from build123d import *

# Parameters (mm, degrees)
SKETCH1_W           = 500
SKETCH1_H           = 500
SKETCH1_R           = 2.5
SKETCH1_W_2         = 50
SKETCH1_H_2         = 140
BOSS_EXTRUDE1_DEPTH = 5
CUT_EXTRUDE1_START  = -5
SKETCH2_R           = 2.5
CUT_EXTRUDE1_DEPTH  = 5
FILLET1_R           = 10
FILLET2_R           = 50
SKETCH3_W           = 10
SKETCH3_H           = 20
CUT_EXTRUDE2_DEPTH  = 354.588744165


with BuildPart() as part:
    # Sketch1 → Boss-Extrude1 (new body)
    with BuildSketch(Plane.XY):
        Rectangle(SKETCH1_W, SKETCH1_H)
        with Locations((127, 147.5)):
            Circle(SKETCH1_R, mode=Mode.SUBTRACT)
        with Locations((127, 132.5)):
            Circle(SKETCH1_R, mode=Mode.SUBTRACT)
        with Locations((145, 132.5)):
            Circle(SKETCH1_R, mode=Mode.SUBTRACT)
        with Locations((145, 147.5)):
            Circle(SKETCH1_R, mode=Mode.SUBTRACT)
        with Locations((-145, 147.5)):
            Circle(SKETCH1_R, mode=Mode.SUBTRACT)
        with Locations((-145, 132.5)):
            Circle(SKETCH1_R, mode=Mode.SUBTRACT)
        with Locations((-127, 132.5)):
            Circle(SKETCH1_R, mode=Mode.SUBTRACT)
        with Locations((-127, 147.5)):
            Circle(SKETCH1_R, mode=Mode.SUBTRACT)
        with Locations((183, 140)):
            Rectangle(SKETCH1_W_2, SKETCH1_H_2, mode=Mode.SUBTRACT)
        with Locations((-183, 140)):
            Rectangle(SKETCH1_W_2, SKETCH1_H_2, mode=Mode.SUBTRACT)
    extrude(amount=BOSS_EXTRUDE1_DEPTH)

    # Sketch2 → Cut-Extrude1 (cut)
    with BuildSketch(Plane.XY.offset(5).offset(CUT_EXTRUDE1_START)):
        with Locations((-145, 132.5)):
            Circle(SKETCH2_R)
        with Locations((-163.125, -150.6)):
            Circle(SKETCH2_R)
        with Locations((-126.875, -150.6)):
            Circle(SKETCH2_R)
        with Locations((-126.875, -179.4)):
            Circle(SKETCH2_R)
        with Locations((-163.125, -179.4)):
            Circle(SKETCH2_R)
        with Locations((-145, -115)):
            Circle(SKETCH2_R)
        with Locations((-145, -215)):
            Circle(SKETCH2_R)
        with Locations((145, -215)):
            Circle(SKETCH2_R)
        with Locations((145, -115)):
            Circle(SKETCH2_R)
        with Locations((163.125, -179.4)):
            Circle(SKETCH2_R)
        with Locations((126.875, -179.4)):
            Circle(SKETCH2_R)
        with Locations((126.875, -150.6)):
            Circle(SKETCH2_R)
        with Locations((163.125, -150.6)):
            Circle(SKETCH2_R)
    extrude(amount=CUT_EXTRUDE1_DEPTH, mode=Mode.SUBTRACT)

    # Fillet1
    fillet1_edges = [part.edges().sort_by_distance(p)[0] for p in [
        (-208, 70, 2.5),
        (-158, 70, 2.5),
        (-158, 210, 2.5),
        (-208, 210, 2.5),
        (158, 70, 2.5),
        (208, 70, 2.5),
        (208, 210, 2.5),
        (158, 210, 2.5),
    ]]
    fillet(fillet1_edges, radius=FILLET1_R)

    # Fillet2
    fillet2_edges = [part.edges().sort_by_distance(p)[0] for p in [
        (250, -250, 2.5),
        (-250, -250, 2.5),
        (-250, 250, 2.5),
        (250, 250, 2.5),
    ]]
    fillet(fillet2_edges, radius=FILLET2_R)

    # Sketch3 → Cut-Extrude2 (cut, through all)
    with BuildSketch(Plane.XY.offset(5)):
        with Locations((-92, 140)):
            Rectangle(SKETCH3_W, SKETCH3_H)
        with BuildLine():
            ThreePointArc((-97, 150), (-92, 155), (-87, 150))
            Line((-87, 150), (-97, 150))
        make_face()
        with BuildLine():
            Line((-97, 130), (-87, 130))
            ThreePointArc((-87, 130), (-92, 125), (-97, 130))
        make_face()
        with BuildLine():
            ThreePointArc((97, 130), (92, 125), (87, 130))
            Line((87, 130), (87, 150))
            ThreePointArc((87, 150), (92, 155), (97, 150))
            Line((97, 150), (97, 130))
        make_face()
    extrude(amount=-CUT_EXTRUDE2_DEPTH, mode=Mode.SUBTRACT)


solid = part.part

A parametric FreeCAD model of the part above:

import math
import FreeCAD as App
import Part
import Sketcher
Q = App.Units.Quantity


def edges_at(feature, points):
    """Names of the edges that pass closest to the given points."""
    edges = feature.Shape.Edges
    near = lambda p: min(range(len(edges)), key=lambda i: edges[i].distToShape(Part.Vertex(*p))[0])
    return sorted({f"Edge{near(p) + 1}" for p in points})


def add_polygon(sketch, points):
    """Adds a closed chain of lines whose ends are joined by coincident constraints."""
    first, n = sketch.GeometryCount, len(points)
    for a, b in zip(points, points[1:] + points[:1]):
        sketch.addGeometry(Part.LineSegment(App.Vector(*a, 0), App.Vector(*b, 0)), False)
    for i in range(n):
        sketch.addConstraint(Sketcher.Constraint("Coincident", first + i, 2, first + (i + 1) % n, 1))

doc = App.newDocument("Part")
body = doc.addObject("PartDesign::Body", "Body")

sketch1 = body.newObject("Sketcher::SketchObject", "Sketch")
sketch1.AttachmentSupport = (doc.getObject("XY_Plane"), [""])
sketch1.MapMode = "FlatFace"
add_polygon(sketch1, [(-250, 250), (-250, -250), (250, -250), (250, 250)])
sketch1.addGeometry(Part.Circle(App.Vector(-145, 132.5, 0), App.Vector(0, 0, 1), 2.5), False)
sketch1.addGeometry(Part.Circle(App.Vector(-127, 132.5, 0), App.Vector(0, 0, 1), 2.5), False)
sketch1.addGeometry(Part.Circle(App.Vector(127, 132.5, 0), App.Vector(0, 0, 1), 2.5), False)
sketch1.addGeometry(Part.Circle(App.Vector(145, 132.5, 0), App.Vector(0, 0, 1), 2.5), False)
add_polygon(sketch1, [(-158, 70), (-208, 70), (-208, 210), (-158, 210)])
sketch1.addGeometry(Part.Circle(App.Vector(-145, 147.5, 0), App.Vector(0, 0, 1), 2.5), False)
sketch1.addGeometry(Part.Circle(App.Vector(-127, 147.5, 0), App.Vector(0, 0, 1), 2.5), False)
sketch1.addGeometry(Part.Circle(App.Vector(127, 147.5, 0), App.Vector(0, 0, 1), 2.5), False)
sketch1.addGeometry(Part.Circle(App.Vector(145, 147.5, 0), App.Vector(0, 0, 1), 2.5), False)
add_polygon(sketch1, [(208, 70), (158, 70), (158, 210), (208, 210)])
sketch1.addConstraint(Sketcher.Constraint("Vertical", 0))
sketch1.addConstraint(Sketcher.Constraint("Horizontal", 1))
sketch1.addConstraint(Sketcher.Constraint("Vertical", 2))
sketch1.addConstraint(Sketcher.Constraint("Horizontal", 3))
sketch1.addConstraint(Sketcher.Constraint("Horizontal", 8))
sketch1.addConstraint(Sketcher.Constraint("Vertical", 9))
sketch1.addConstraint(Sketcher.Constraint("Horizontal", 10))
sketch1.addConstraint(Sketcher.Constraint("Vertical", 11))
sketch1.addConstraint(Sketcher.Constraint("Horizontal", 16))
sketch1.addConstraint(Sketcher.Constraint("Vertical", 17))
sketch1.addConstraint(Sketcher.Constraint("Horizontal", 18))
sketch1.addConstraint(Sketcher.Constraint("Vertical", 19))
sketch1.addConstraint(Sketcher.Constraint("Equal", 4, 5))
sketch1.addConstraint(Sketcher.Constraint("Equal", 5, 6))
sketch1.addConstraint(Sketcher.Constraint("Equal", 6, 7))
sketch1.addConstraint(Sketcher.Constraint("Equal", 7, 12))
sketch1.addConstraint(Sketcher.Constraint("Equal", 12, 13))
sketch1.addConstraint(Sketcher.Constraint("Equal", 13, 14))
sketch1.addConstraint(Sketcher.Constraint("Equal", 14, 15))
sketch1.addConstraint(Sketcher.Constraint("Symmetric", 0, 2, 2, 2, -1, 1))
sketch1.addConstraint(Sketcher.Constraint("Symmetric", 5, 3, 6, 3, -2))
sketch1.addConstraint(Sketcher.Constraint("Symmetric", 4, 3, 7, 3, -2))
sketch1.addConstraint(Sketcher.Constraint("Symmetric", 13, 3, 14, 3, -2))
sketch1.addConstraint(Sketcher.Constraint("Symmetric", 12, 3, 15, 3, -2))
sketch1.addConstraint(Sketcher.Constraint("Symmetric", 11, 2, 16, 2, -2))
sketch1.addConstraint(Sketcher.Constraint("Symmetric", 9, 2, 18, 2, -2))
sketch1.addConstraint(Sketcher.Constraint("Horizontal", 4, 3, 5, 3))
sketch1.addConstraint(Sketcher.Constraint("Horizontal", 12, 3, 13, 3))
sketch1.addConstraint(Sketcher.Constraint("Vertical", 4, 3, 12, 3))
sketch1.addConstraint(Sketcher.Constraint("Vertical", 5, 3, 13, 3))
sketch1.addConstraint(Sketcher.Constraint("Equal", 3, 0))
sketch1.addConstraint(Sketcher.Constraint("Diameter", 4, Q("5 mm")))
sketch1.addConstraint(Sketcher.Constraint("DistanceX", 1, 1, 1, 2, Q("500 mm")))
sketch1.addConstraint(Sketcher.Constraint("DistanceX", 8, 2, 8, 1, Q("50 mm")))
sketch1.addConstraint(Sketcher.Constraint("DistanceY", 9, 1, 9, 2, Q("140 mm")))
sketch1.addConstraint(Sketcher.Constraint("DistanceX", 4, 3, -1, 1, Q("145 mm")))
sketch1.addConstraint(Sketcher.Constraint("DistanceX", 5, 3, -1, 1, Q("127 mm")))
sketch1.addConstraint(Sketcher.Constraint("DistanceX", 8, 2, -1, 1, Q("208 mm")))
sketch1.addConstraint(Sketcher.Constraint("DistanceY", -1, 1, 8, 2, Q("70 mm")))
sketch1.addConstraint(Sketcher.Constraint("DistanceY", 4, 3, 12, 3, Q("15 mm")))
sketch1.addConstraint(Sketcher.Constraint("DistanceY", -1, 1, 4, 3, Q("132.5 mm")))
pad1 = body.newObject("PartDesign::Pad", "Pad")
pad1.Profile = sketch1
pad1.Length = 5

sketch2 = body.newObject("Sketcher::SketchObject", "Sketch001")
sketch2.AttachmentSupport = (doc.getObject("XY_Plane"), [""])
sketch2.MapMode = "FlatFace"
sketch2.addGeometry(Part.Circle(App.Vector(-145, 132.5, 0), App.Vector(0, 0, 1), 2.5), False)
sketch2.addGeometry(Part.Circle(App.Vector(-163.1, -150.6, 0), App.Vector(0, 0, 1), 2.5), False)
sketch2.addGeometry(Part.Circle(App.Vector(-126.9, -150.6, 0), App.Vector(0, 0, 1), 2.5), False)
sketch2.addGeometry(Part.Circle(App.Vector(-126.9, -179.4, 0), App.Vector(0, 0, 1), 2.5), False)
sketch2.addGeometry(Part.Circle(App.Vector(-163.1, -179.4, 0), App.Vector(0, 0, 1), 2.5), False)
sketch2.addGeometry(Part.Circle(App.Vector(-145, -115, 0), App.Vector(0, 0, 1), 2.5), False)
sketch2.addGeometry(Part.Circle(App.Vector(-145, -215, 0), App.Vector(0, 0, 1), 2.5), False)
sketch2.addGeometry(Part.Circle(App.Vector(145, -215, 0), App.Vector(0, 0, 1), 2.5), False)
sketch2.addGeometry(Part.Circle(App.Vector(145, -115, 0), App.Vector(0, 0, 1), 2.5), False)
sketch2.addGeometry(Part.Circle(App.Vector(163.1, -179.4, 0), App.Vector(0, 0, 1), 2.5), False)
sketch2.addGeometry(Part.Circle(App.Vector(126.9, -179.4, 0), App.Vector(0, 0, 1), 2.5), False)
sketch2.addGeometry(Part.Circle(App.Vector(126.9, -150.6, 0), App.Vector(0, 0, 1), 2.5), False)
sketch2.addGeometry(Part.Circle(App.Vector(163.1, -150.6, 0), App.Vector(0, 0, 1), 2.5), False)
sketch2.addConstraint(Sketcher.Constraint("Equal", 0, 1))
sketch2.addConstraint(Sketcher.Constraint("Equal", 1, 2))
sketch2.addConstraint(Sketcher.Constraint("Equal", 2, 3))
sketch2.addConstraint(Sketcher.Constraint("Equal", 3, 4))
sketch2.addConstraint(Sketcher.Constraint("Equal", 4, 5))
sketch2.addConstraint(Sketcher.Constraint("Equal", 5, 6))
sketch2.addConstraint(Sketcher.Constraint("Equal", 6, 7))
sketch2.addConstraint(Sketcher.Constraint("Equal", 7, 8))
sketch2.addConstraint(Sketcher.Constraint("Equal", 8, 9))
sketch2.addConstraint(Sketcher.Constraint("Equal", 9, 10))
sketch2.addConstraint(Sketcher.Constraint("Equal", 10, 11))
sketch2.addConstraint(Sketcher.Constraint("Equal", 11, 12))
sketch2.addConstraint(Sketcher.Constraint("Symmetric", 6, 3, 7, 3, -2))
sketch2.addConstraint(Sketcher.Constraint("Symmetric", 5, 3, 8, 3, -2))
sketch2.addConstraint(Sketcher.Constraint("Symmetric", 4, 3, 9, 3, -2))
sketch2.addConstraint(Sketcher.Constraint("Symmetric", 3, 3, 10, 3, -2))
sketch2.addConstraint(Sketcher.Constraint("Symmetric", 2, 3, 11, 3, -2))
sketch2.addConstraint(Sketcher.Constraint("Symmetric", 1, 3, 12, 3, -2))
sketch2.addConstraint(Sketcher.Constraint("Horizontal", 1, 3, 2, 3))
sketch2.addConstraint(Sketcher.Constraint("Horizontal", 3, 3, 4, 3))
sketch2.addConstraint(Sketcher.Constraint("Vertical", 2, 3, 3, 3))
sketch2.addConstraint(Sketcher.Constraint("Vertical", 1, 3, 4, 3))
sketch2.addConstraint(Sketcher.Constraint("Vertical", 0, 3, 5, 3))
sketch2.addConstraint(Sketcher.Constraint("Vertical", 5, 3, 6, 3))
sketch2.addConstraint(Sketcher.Constraint("Diameter", 0, Q("5 mm")))
sketch2.addConstraint(Sketcher.Constraint("DistanceX", 0, 3, -1, 1, Q("145 mm")))
sketch2.addConstraint(Sketcher.Constraint("DistanceY", 5, 3, -1, 1, Q("115 mm")))
sketch2.addConstraint(Sketcher.Constraint("DistanceY", 6, 3, -1, 1, Q("215 mm")))
sketch2.addConstraint(Sketcher.Constraint("DistanceX", 3, 3, 9, 3, Q("290 mm")))
sketch2.addConstraint(Sketcher.Constraint("DistanceY", -1, 1, 0, 3, Q("132.5 mm")))
sketch2.addConstraint(Sketcher.Constraint("DistanceY", 1, 3, -1, 1, Q("150.6 mm")))
sketch2.addConstraint(Sketcher.Constraint("DistanceY", 3, 3, -1, 1, Q("179.4 mm")))
sketch2.addConstraint(Sketcher.Constraint("DistanceX", 1, 3, 2, 3, Q("36.25 mm")))
pocket1 = body.newObject("PartDesign::Pocket", "Pocket")
pocket1.Profile = sketch2
pocket1.Length = 5
pocket1.Reversed = True
doc.recompute()

fillet = body.newObject("PartDesign::Fillet", "Fillet")
fillet.Base = (pocket1, edges_at(pocket1, [
    (-208, 70, 2.5),
    (-158, 70, 2.5),
    (-158, 210, 2.5),
    (-208, 210, 2.5),
    (158, 70, 2.5),
    (208, 70, 2.5),
    (208, 210, 2.5),
    (158, 210, 2.5),
]))
fillet.Radius = 10
doc.recompute()

fillet2 = body.newObject("PartDesign::Fillet", "Fillet001")
fillet2.Base = (fillet, edges_at(fillet, [
    (250, -250, 2.5),
    (-250, -250, 2.5),
    (-250, 250, 2.5),
    (250, 250, 2.5),
]))
fillet2.Radius = 50

sketch3 = body.newObject("Sketcher::SketchObject", "Sketch002")
sketch3.AttachmentSupport = (doc.getObject("XY_Plane"), [""])
sketch3.MapMode = "FlatFace"
sketch3.AttachmentOffset = App.Placement(App.Vector(0, 0, 5), App.Rotation())
sketch3.addGeometry(Part.LineSegment(App.Vector(-97, 150, 0), App.Vector(-97, 130, 0)), False)
sketch3.addGeometry(Part.ArcOfCircle(Part.Circle(App.Vector(-92, 130, 0), App.Vector(0, 0, 1), 5), math.radians(180), math.radians(360)), False)
sketch3.addGeometry(Part.LineSegment(App.Vector(-87, 130, 0), App.Vector(-87, 150, 0)), False)
sketch3.addGeometry(Part.ArcOfCircle(Part.Circle(App.Vector(-92, 150, 0), App.Vector(0, 0, 1), 5), math.radians(0), math.radians(180)), False)
sketch3.addGeometry(Part.ArcOfCircle(Part.Circle(App.Vector(92, 130, 0), App.Vector(0, 0, 1), 5), math.radians(180), math.radians(360)), False)
sketch3.addGeometry(Part.LineSegment(App.Vector(97, 130, 0), App.Vector(97, 150, 0)), False)
sketch3.addGeometry(Part.ArcOfCircle(Part.Circle(App.Vector(92, 150, 0), App.Vector(0, 0, 1), 5), math.radians(0), math.radians(180)), False)
sketch3.addGeometry(Part.LineSegment(App.Vector(87, 150, 0), App.Vector(87, 130, 0)), False)
sketch3.addConstraint(Sketcher.Constraint("Tangent", 0, 2, 1, 1))
sketch3.addConstraint(Sketcher.Constraint("Tangent", 1, 2, 2, 1))
sketch3.addConstraint(Sketcher.Constraint("Tangent", 2, 2, 3, 1))
sketch3.addConstraint(Sketcher.Constraint("Tangent", 3, 2, 0, 1))
sketch3.addConstraint(Sketcher.Constraint("Tangent", 4, 2, 5, 1))
sketch3.addConstraint(Sketcher.Constraint("Tangent", 5, 2, 6, 1))
sketch3.addConstraint(Sketcher.Constraint("Tangent", 6, 2, 7, 1))
sketch3.addConstraint(Sketcher.Constraint("Tangent", 7, 2, 4, 1))
sketch3.addConstraint(Sketcher.Constraint("Vertical", 0))
sketch3.addConstraint(Sketcher.Constraint("Vertical", 2))
sketch3.addConstraint(Sketcher.Constraint("Vertical", 5))
sketch3.addConstraint(Sketcher.Constraint("Vertical", 7))
sketch3.addConstraint(Sketcher.Constraint("Equal", 3, 4))
sketch3.addConstraint(Sketcher.Constraint("Symmetric", 1, 3, 4, 3, -2))
sketch3.addConstraint(Sketcher.Constraint("Horizontal", 3, 3, 6, 3))
sketch3.addConstraint(Sketcher.Constraint("Radius", 1, Q("5 mm")))
sketch3.addConstraint(Sketcher.Constraint("DistanceY", 0, 2, 0, 1, Q("20 mm")))
sketch3.addConstraint(Sketcher.Constraint("DistanceX", 1, 3, -1, 1, Q("92 mm")))
sketch3.addConstraint(Sketcher.Constraint("DistanceY", -1, 1, 1, 3, Q("130 mm")))
pocket2 = body.newObject("PartDesign::Pocket", "Pocket001")
pocket2.Profile = sketch3
pocket2.Type = "ThroughAll"

doc.recompute()
